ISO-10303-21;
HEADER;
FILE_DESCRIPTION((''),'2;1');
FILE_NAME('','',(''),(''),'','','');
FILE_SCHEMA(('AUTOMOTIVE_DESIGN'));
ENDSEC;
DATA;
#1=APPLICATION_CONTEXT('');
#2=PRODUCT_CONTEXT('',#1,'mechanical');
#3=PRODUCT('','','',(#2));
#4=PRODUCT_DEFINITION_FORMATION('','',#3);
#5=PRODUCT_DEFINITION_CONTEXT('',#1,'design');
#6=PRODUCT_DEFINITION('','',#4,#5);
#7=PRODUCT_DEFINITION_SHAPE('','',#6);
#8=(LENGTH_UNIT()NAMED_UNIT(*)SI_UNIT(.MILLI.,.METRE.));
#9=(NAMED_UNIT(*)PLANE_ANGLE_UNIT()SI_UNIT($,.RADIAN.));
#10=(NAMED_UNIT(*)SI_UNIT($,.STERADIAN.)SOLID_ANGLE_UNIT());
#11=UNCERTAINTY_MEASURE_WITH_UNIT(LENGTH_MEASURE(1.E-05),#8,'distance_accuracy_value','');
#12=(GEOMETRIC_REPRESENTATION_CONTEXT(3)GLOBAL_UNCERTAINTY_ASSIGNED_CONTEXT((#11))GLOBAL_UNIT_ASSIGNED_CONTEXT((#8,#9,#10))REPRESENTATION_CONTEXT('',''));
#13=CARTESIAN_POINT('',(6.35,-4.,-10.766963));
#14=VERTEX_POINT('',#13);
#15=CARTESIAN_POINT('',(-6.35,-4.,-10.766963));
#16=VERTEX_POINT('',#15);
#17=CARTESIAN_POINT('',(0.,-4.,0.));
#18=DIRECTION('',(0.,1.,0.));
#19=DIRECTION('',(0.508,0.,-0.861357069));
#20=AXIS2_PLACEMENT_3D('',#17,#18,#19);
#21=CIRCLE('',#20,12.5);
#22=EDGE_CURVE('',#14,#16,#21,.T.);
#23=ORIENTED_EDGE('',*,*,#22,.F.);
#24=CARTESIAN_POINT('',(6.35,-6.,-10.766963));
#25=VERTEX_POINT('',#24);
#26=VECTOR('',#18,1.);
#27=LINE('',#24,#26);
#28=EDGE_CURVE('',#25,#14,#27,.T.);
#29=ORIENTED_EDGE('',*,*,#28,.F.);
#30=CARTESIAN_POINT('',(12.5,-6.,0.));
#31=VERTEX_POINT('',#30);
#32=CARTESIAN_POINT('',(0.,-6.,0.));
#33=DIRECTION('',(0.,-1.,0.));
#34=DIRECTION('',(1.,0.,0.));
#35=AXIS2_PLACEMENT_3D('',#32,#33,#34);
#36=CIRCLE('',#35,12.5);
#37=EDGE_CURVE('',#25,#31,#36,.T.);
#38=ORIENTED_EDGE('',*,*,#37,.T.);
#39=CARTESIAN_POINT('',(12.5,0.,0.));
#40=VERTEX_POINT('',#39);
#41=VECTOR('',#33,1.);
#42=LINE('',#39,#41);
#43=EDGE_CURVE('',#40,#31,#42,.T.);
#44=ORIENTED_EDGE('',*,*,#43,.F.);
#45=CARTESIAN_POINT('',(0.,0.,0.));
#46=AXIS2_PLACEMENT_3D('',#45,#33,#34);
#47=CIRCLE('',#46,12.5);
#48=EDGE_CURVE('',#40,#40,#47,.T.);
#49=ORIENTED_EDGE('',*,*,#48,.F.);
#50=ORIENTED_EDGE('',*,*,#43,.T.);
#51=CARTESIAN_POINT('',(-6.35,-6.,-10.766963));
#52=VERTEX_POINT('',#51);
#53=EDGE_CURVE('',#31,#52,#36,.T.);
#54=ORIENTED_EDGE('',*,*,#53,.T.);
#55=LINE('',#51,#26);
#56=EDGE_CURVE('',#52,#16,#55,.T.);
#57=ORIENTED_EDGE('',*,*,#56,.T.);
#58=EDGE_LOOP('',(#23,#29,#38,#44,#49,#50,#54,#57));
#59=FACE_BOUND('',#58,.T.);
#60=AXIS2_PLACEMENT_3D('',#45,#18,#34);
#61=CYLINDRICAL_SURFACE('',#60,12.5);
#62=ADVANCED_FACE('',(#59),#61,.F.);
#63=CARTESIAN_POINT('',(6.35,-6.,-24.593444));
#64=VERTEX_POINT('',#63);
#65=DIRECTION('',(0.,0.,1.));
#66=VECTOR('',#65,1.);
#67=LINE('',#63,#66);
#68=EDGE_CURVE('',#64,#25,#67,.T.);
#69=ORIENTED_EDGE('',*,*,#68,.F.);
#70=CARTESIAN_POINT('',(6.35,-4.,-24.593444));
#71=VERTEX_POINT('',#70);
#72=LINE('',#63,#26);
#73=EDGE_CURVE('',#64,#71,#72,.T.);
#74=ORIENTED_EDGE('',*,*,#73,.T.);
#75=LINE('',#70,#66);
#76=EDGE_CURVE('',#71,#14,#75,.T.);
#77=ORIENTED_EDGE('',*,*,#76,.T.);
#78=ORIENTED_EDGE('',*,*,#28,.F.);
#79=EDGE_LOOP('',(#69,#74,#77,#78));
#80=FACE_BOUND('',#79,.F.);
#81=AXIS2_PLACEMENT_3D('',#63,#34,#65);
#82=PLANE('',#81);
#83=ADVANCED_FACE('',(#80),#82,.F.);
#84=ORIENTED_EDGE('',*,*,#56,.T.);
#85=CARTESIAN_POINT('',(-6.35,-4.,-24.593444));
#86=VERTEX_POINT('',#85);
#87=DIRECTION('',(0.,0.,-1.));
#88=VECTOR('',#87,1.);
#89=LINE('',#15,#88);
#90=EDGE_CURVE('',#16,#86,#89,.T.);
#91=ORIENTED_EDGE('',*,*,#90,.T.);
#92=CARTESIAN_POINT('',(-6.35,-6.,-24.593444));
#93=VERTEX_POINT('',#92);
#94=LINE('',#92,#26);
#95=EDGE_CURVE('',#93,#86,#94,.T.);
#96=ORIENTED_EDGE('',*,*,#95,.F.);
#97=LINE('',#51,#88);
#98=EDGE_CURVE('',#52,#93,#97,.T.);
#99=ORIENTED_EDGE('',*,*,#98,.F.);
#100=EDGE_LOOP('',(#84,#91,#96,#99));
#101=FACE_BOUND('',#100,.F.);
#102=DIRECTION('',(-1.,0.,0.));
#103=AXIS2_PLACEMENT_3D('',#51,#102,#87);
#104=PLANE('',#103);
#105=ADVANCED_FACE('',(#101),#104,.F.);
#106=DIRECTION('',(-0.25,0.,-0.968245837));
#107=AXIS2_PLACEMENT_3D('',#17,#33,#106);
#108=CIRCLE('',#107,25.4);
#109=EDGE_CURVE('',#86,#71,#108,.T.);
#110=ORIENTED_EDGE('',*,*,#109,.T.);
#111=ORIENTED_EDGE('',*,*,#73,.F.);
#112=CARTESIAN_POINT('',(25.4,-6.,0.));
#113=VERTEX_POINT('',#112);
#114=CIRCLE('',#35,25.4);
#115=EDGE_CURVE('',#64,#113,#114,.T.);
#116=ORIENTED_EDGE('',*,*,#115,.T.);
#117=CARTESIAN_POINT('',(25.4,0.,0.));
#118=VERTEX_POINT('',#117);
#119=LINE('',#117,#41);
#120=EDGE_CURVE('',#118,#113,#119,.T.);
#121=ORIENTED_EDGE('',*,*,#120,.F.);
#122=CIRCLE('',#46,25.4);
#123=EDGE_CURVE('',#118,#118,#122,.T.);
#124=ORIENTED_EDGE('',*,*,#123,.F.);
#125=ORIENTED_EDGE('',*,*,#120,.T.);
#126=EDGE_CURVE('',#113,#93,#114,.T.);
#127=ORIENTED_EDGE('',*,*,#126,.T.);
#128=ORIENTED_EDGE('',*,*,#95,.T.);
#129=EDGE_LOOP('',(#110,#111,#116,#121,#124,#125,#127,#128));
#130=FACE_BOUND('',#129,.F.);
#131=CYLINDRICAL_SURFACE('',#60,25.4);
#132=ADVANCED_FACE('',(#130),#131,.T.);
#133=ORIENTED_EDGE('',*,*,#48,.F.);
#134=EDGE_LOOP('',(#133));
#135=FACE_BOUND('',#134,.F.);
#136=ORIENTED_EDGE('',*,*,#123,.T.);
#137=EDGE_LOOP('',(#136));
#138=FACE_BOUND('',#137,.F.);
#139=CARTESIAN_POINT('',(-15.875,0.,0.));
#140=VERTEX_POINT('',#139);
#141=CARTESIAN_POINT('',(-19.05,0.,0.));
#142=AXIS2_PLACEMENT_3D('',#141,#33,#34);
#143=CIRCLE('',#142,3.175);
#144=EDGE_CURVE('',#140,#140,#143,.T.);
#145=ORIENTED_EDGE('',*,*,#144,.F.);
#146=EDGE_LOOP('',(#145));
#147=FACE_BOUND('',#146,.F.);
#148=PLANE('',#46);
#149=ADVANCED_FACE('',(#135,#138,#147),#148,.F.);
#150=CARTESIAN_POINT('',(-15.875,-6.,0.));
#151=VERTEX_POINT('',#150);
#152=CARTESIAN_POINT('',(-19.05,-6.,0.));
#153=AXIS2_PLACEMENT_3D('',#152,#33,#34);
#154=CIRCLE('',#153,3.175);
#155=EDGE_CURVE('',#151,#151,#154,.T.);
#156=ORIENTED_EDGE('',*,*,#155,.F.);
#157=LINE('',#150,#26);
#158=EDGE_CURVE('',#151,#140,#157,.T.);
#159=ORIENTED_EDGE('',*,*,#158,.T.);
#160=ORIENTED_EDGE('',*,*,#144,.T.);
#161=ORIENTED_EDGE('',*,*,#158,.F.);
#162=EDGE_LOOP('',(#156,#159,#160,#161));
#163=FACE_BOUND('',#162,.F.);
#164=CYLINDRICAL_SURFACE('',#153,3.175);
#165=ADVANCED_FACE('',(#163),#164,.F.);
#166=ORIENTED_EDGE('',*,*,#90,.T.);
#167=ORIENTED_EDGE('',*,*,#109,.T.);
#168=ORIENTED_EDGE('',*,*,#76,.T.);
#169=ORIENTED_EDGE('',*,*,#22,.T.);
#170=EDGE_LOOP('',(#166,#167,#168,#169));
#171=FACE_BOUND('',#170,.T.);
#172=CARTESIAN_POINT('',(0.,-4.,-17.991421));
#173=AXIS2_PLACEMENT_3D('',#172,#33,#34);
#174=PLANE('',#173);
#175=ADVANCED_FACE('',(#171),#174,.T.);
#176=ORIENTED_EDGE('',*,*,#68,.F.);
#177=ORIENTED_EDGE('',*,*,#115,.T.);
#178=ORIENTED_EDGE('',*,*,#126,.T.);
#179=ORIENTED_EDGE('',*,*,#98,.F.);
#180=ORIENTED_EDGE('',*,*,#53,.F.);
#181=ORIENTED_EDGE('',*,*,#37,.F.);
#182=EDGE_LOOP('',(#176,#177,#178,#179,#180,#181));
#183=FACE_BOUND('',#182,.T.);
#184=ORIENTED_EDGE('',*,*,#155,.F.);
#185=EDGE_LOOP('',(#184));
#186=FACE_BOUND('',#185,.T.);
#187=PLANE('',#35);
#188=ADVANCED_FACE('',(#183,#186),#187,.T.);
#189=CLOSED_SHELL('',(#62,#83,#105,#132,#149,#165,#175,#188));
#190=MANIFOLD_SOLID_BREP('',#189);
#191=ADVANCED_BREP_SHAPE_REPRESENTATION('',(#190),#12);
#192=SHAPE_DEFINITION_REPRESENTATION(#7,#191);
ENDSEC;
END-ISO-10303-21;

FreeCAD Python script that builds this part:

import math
import FreeCAD as App
import Part
import Sketcher

doc = App.newDocument("Part")
body = doc.addObject("PartDesign::Body", "Body")

# Sketch on XZ plane
sketch1 = doc.addObject("Sketcher::SketchObject", "Sketch")
body.addObject(sketch1)
sketch1.AttachmentSupport = (doc.XZ_Plane, [""])
sketch1.MapMode = "FlatFace"
sketch1.addGeometry(Part.Circle(App.Vector(0, 0, 0), App.Vector(0, 0, 1), 25.4), False)
sketch1.addGeometry(Part.Circle(App.Vector(0, 0, 0), App.Vector(0, 0, 1), 12.5), False)
sketch1.addConstraint(Sketcher.Constraint("Coincident", 0, 3, -1, 1))
sketch1.addConstraint(Sketcher.Constraint("Coincident", 1, 3, -1, 1))
sketch1.addConstraint(Sketcher.Constraint("Diameter", 1, 25.0))
sketch1.addConstraint(Sketcher.Constraint("Diameter", 0, 50.8))
pad1 = doc.addObject("PartDesign::Pad", "Pad")
body.addObject(pad1)
pad1.Profile = sketch1
pad1.Length = 6

# Sketch on XZ plane
sketch2 = doc.addObject("Sketcher::SketchObject", "Sketch001")
body.addObject(sketch2)
sketch2.AttachmentSupport = (doc.XZ_Plane, [""])
sketch2.MapMode = "FlatFace"
sketch2.AttachmentOffset = App.Placement(App.Vector(0, 0, 6), App.Rotation())
sketch2.addGeometry(Part.ArcOfCircle(Part.Circle(App.Vector(0, 0, 0), App.Vector(0, 0, 1), 25.4), math.radians(-104.477512), math.radians(-75.522488)), False)
sketch2.addGeometry(Part.LineSegment(App.Vector(6.35, -24.593444, 0), App.Vector(6.35, -10.766963, 0)), False)
sketch2.addGeometry(Part.ArcOfCircle(Part.Circle(App.Vector(0, 0, 0), App.Vector(0, 0, 1), 12.5), math.radians(-120.530702), math.radians(-59.469298)), False)
sketch2.addGeometry(Part.LineSegment(App.Vector(-6.35, -10.766963, 0), App.Vector(-6.35, -24.593444, 0)), False)
sketch2.addConstraint(Sketcher.Constraint("Coincident", 0, 2, 1, 1))
sketch2.addConstraint(Sketcher.Constraint("Coincident", 1, 2, 2, 2))
sketch2.addConstraint(Sketcher.Constraint("Coincident", 2, 1, 3, 1))
sketch2.addConstraint(Sketcher.Constraint("Coincident", 3, 2, 0, 1))
sketch2.addConstraint(Sketcher.Constraint("Vertical", 1))
sketch2.addConstraint(Sketcher.Constraint("Vertical", 3))
sketch2.addConstraint(Sketcher.Constraint("Coincident", 0, 3, -1, 1))
sketch2.addConstraint(Sketcher.Constraint("Coincident", 2, 3, -1, 1))
sketch2.addConstraint(Sketcher.Constraint("Horizontal", 1, 2, 2, 1))
sketch2.addConstraint(Sketcher.Constraint("Radius", 0, 25.4))
sketch2.addConstraint(Sketcher.Constraint("Radius", 2, 12.5))
sketch2.addConstraint(Sketcher.Constraint("DistanceX", 2, 1, 1, 2, 12.7))
pocket1 = doc.addObject("PartDesign::Pocket", "Pocket")
body.addObject(pocket1)
pocket1.Profile = sketch2
pocket1.Length = 2

# Sketch on XZ plane
sketch3 = doc.addObject("Sketcher::SketchObject", "Sketch002")
body.addObject(sketch3)
sketch3.AttachmentSupport = (doc.XZ_Plane, [""])
sketch3.MapMode = "FlatFace"
sketch3.AttachmentOffset = App.Placement(App.Vector(0, 0, 6), App.Rotation())
sketch3.addGeometry(Part.Circle(App.Vector(-19.05, 0, 0), App.Vector(0, 0, 1), 3.175), False)
sketch3.addConstraint(Sketcher.Constraint("PointOnObject", 0, 3, -1))
sketch3.addConstraint(Sketcher.Constraint("Diameter", 0, 6.35))
sketch3.addConstraint(Sketcher.Constraint("DistanceX", 0, 3, -1, 1, 19.05))
pocket2 = doc.addObject("PartDesign::Pocket", "Pocket001")
body.addObject(pocket2)
pocket2.Profile = sketch3
pocket2.Type = "ThroughAll"

doc.recompute()
